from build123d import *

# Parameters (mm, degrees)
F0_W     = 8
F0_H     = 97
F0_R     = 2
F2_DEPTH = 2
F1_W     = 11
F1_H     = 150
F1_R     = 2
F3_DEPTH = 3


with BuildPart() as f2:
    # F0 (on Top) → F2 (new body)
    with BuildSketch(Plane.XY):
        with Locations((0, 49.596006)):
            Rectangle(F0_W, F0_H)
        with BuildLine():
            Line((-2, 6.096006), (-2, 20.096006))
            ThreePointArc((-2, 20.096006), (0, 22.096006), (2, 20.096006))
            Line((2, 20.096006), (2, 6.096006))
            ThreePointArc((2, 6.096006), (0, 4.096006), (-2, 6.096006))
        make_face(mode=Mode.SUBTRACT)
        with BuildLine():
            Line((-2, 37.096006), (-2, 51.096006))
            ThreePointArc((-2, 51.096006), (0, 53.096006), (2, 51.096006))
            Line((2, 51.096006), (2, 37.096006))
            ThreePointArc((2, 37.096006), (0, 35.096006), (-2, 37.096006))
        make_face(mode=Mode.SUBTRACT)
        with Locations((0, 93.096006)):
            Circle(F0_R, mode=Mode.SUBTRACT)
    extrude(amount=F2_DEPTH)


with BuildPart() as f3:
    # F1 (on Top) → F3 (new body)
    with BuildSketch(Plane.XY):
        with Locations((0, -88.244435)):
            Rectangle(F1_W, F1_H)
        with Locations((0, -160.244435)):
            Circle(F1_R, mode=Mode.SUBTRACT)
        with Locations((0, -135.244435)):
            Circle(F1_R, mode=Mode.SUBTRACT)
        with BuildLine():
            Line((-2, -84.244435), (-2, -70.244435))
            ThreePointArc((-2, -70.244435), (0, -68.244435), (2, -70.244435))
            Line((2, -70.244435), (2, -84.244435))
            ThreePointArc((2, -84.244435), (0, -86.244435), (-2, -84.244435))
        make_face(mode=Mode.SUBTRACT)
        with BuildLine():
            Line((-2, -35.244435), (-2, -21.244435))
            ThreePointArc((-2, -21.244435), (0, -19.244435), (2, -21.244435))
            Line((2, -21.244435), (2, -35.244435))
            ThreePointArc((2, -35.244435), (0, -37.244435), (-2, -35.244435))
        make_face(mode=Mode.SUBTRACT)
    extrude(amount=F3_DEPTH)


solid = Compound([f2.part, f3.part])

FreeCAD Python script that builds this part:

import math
import FreeCAD as App
import Part
import Sketcher

V = App.Vector
Q = App.Units.Quantity

doc = App.newDocument("Part")
body = doc.addObject("PartDesign::Body", "Body")

sketch1 = body.newObject("Sketcher::SketchObject", "Sketch")
sketch1.AttachmentSupport = (doc.getObject("XY_Plane"), [""])
sketch1.MapMode = "FlatFace"
sketch1.addGeometry(Part.LineSegment(V(-4, 98.1, 0), V(-4, 1.1, 0)), False)
sketch1.addGeometry(Part.LineSegment(V(-4, 1.1, 0), V(4, 1.1, 0)), False)
sketch1.addGeometry(Part.LineSegment(V(4, 1.1, 0), V(4, 98.1, 0)), False)
sketch1.addGeometry(Part.LineSegment(V(4, 98.1, 0), V(-4, 98.1, 0)), False)
sketch1.addGeometry(Part.ArcOfCircle(Part.Circle(V(0, 6.1, 0), V(0, 0, 1), 2), math.radians(180), math.radians(360)), False)
sketch1.addGeometry(Part.LineSegment(V(-2, 6.1, 0), V(-2, 20.1, 0)), False)
sketch1.addGeometry(Part.ArcOfCircle(Part.Circle(V(0, 20.1, 0), V(0, 0, 1), 2), math.radians(0), math.radians(180)), False)
sketch1.addGeometry(Part.LineSegment(V(2, 20.1, 0), V(2, 6.1, 0)), False)
sketch1.addGeometry(Part.ArcOfCircle(Part.Circle(V(0, 37.1, 0), V(0, 0, 1), 2), math.radians(180), math.radians(360)), False)
sketch1.addGeometry(Part.LineSegment(V(-2, 37.1, 0), V(-2, 51.1, 0)), False)
sketch1.addGeometry(Part.ArcOfCircle(Part.Circle(V(0, 51.1, 0), V(0, 0, 1), 2), math.radians(0), math.radians(180)), False)
sketch1.addGeometry(Part.LineSegment(V(2, 51.1, 0), V(2, 37.1, 0)), False)
sketch1.addGeometry(Part.Circle(V(0, 93.1, 0), V(0, 0, 1), 2), False)
sketch1.addConstraint(Sketcher.Constraint("Coincident", 0, 2, 1, 1))
sketch1.addConstraint(Sketcher.Constraint("Coincident", 1, 2, 2, 1))
sketch1.addConstraint(Sketcher.Constraint("Coincident", 2, 2, 3, 1))
sketch1.addConstraint(Sketcher.Constraint("Coincident", 3, 2, 0, 1))
sketch1.addConstraint(Sketcher.Constraint("Tangent", 4, 1, 5, 1))
sketch1.addConstraint(Sketcher.Constraint("Tangent", 5, 2, 6, 2))
sketch1.addConstraint(Sketcher.Constraint("Tangent", 6, 1, 7, 1))
sketch1.addConstraint(Sketcher.Constraint("Tangent", 7, 2, 4, 2))
sketch1.addConstraint(Sketcher.Constraint("Tangent", 8, 1, 9, 1))
sketch1.addConstraint(Sketcher.Constraint("Tangent", 9, 2, 10, 2))
sketch1.addConstraint(Sketcher.Constraint("Tangent", 10, 1, 11, 1))
sketch1.addConstraint(Sketcher.Constraint("Tangent", 11, 2, 8, 2))
sketch1.addConstraint(Sketcher.Constraint("Vertical", 0))
sketch1.addConstraint(Sketcher.Constraint("Horizontal", 1))
sketch1.addConstraint(Sketcher.Constraint("Vertical", 2))
sketch1.addConstraint(Sketcher.Constraint("Horizontal", 3))
sketch1.addConstraint(Sketcher.Constraint("Vertical", 5))
sketch1.addConstraint(Sketcher.Constraint("Vertical", 7))
sketch1.addConstraint(Sketcher.Constraint("Vertical", 9))
sketch1.addConstraint(Sketcher.Constraint("Vertical", 11))
sketch1.addConstraint(Sketcher.Constraint("Equal", 6, 8))
sketch1.addConstraint(Sketcher.Constraint("Equal", 10, 12))
sketch1.addConstraint(Sketcher.Constraint("PointOnObject", 4, 3, -2))
sketch1.addConstraint(Sketcher.Constraint("PointOnObject", 8, 3, -2))
sketch1.addConstraint(Sketcher.Constraint("PointOnObject", 12, 3, -2))
sketch1.addConstraint(Sketcher.Constraint("Equal", 7, 9))
sketch1.addConstraint(Sketcher.Constraint("Diameter", 12, Q("4 mm")))
sketch1.addConstraint(Sketcher.Constraint("DistanceX", 1, 1, 1, 2, Q("8 mm")))
sketch1.addConstraint(Sketcher.Constraint("DistanceY", 0, 2, 0, 1, Q("97 mm")))
sketch1.addConstraint(Sketcher.Constraint("DistanceY", 5, 1, 5, 2, Q("14 mm")))
sketch1.addConstraint(Sketcher.Constraint("DistanceX", 0, 2, -1, 1, Q("4 mm")))
sketch1.addConstraint(Sketcher.Constraint("DistanceY", 6, 3, 8, 3, Q("17 mm")))
sketch1.addConstraint(Sketcher.Constraint("DistanceY", 10, 3, 12, 3, Q("42 mm")))
sketch1.addConstraint(Sketcher.Constraint("DistanceY", 0, 2, 4, 3, Q("5 mm")))
sketch1.addConstraint(Sketcher.Constraint("DistanceY", -1, 1, 4, 3, Q("6.096006 mm")))
pad1 = body.newObject("PartDesign::Pad", "Pad")
pad1.Profile = sketch1
pad1.Length = 2
body2 = doc.addObject("PartDesign::Body", "Body001")

sketch2 = body2.newObject("Sketcher::SketchObject", "Sketch001")
sketch2.AttachmentSupport = (doc.getObject("XY_Plane001"), [""])
sketch2.MapMode = "FlatFace"
sketch2.addGeometry(Part.LineSegment(V(-5.5, -13.2, 0), V(-5.5, -163.2, 0)), False)
sketch2.addGeometry(Part.LineSegment(V(-5.5, -163.2, 0), V(5.5, -163.2, 0)), False)
sketch2.addGeometry(Part.LineSegment(V(5.5, -163.2, 0), V(5.5, -13.2, 0)), False)
sketch2.addGeometry(Part.LineSegment(V(5.5, -13.2, 0), V(-5.5, -13.2, 0)), False)
sketch2.addGeometry(Part.Circle(V(0, -160.2, 0), V(0, 0, 1), 2), False)
sketch2.addGeometry(Part.Circle(V(0, -135.2, 0), V(0, 0, 1), 2), False)
sketch2.addGeometry(Part.ArcOfCircle(Part.Circle(V(0, -84.2, 0), V(0, 0, 1), 2), math.radians(180), math.radians(360)), False)
sketch2.addGeometry(Part.LineSegment(V(-2, -84.2, 0), V(-2, -70.2, 0)), False)
sketch2.addGeometry(Part.ArcOfCircle(Part.Circle(V(0, -70.2, 0), V(0, 0, 1), 2), math.radians(0), math.radians(180)), False)
sketch2.addGeometry(Part.LineSegment(V(2, -70.2, 0), V(2, -84.2, 0)), False)
sketch2.addGeometry(Part.ArcOfCircle(Part.Circle(V(0, -35.2, 0), V(0, 0, 1), 2), math.radians(180), math.radians(360)), False)
sketch2.addGeometry(Part.LineSegment(V(-2, -35.2, 0), V(-2, -21.2, 0)), False)
sketch2.addGeometry(Part.ArcOfCircle(Part.Circle(V(0, -21.2, 0), V(0, 0, 1), 2), math.radians(0), math.radians(180)), False)
sketch2.addGeometry(Part.LineSegment(V(2, -21.2, 0), V(2, -35.2, 0)), False)
sketch2.addConstraint(Sketcher.Constraint("Coincident", 0, 2, 1, 1))
sketch2.addConstraint(Sketcher.Constraint("Coincident", 1, 2, 2, 1))
sketch2.addConstraint(Sketcher.Constraint("Coincident", 2, 2, 3, 1))
sketch2.addConstraint(Sketcher.Constraint("Coincident", 3, 2, 0, 1))
sketch2.addConstraint(Sketcher.Constraint("Tangent", 6, 1, 7, 1))
sketch2.addConstraint(Sketcher.Constraint("Tangent", 7, 2, 8, 2))
sketch2.addConstraint(Sketcher.Constraint("Tangent", 8, 1, 9, 1))
sketch2.addConstraint(Sketcher.Constraint("Tangent", 9, 2, 6, 2))
sketch2.addConstraint(Sketcher.Constraint("Tangent", 10, 1, 11, 1))
sketch2.addConstraint(Sketcher.Constraint("Tangent", 11, 2, 12, 2))
sketch2.addConstraint(Sketcher.Constraint("Tangent", 12, 1, 13, 1))
sketch2.addConstraint(Sketcher.Constraint("Tangent", 13, 2, 10, 2))
sketch2.addConstraint(Sketcher.Constraint("Vertical", 0))
sketch2.addConstraint(Sketcher.Constraint("Horizontal", 1))
sketch2.addConstraint(Sketcher.Constraint("Vertical", 2))
sketch2.addConstraint(Sketcher.Constraint("Horizontal", 3))
sketch2.addConstraint(Sketcher.Constraint("Vertical", 7))
sketch2.addConstraint(Sketcher.Constraint("Vertical", 9))
sketch2.addConstraint(Sketcher.Constraint("Vertical", 11))
sketch2.addConstraint(Sketcher.Constraint("Vertical", 13))
sketch2.addConstraint(Sketcher.Constraint("Equal", 4, 5))
sketch2.addConstraint(Sketcher.Constraint("Equal", 5, 6))
sketch2.addConstraint(Sketcher.Constraint("Equal", 8, 10))
sketch2.addConstraint(Sketcher.Constraint("PointOnObject", 4, 3, -2))
sketch2.addConstraint(Sketcher.Constraint("PointOnObject", 5, 3, -2))
sketch2.addConstraint(Sketcher.Constraint("PointOnObject", 6, 3, -2))
sketch2.addConstraint(Sketcher.Constraint("PointOnObject", 10, 3, -2))
sketch2.addConstraint(Sketcher.Constraint("Equal", 9, 11))
sketch2.addConstraint(Sketcher.Constraint("Diameter", 4, Q("4 mm")))
sketch2.addConstraint(Sketcher.Constraint("DistanceX", 1, 1, 1, 2, Q("11 mm")))
sketch2.addConstraint(Sketcher.Constraint("DistanceY", 0, 2, 0, 1, Q("150 mm")))
sketch2.addConstraint(Sketcher.Constraint("DistanceY", 7, 1, 7, 2, Q("14 mm")))
sketch2.addConstraint(Sketcher.Constraint("DistanceY", 4, 3, 5, 3, Q("25 mm")))
sketch2.addConstraint(Sketcher.Constraint("DistanceY", 5, 3, 6, 3, Q("51 mm")))
sketch2.addConstraint(Sketcher.Constraint("DistanceY", 8, 3, 10, 3, Q("35 mm")))
sketch2.addConstraint(Sketcher.Constraint("DistanceY", 0, 2, 4, 3, Q("3 mm")))
sketch2.addConstraint(Sketcher.Constraint("DistanceX", 0, 2, -1, 1, Q("5.5 mm")))
sketch2.addConstraint(Sketcher.Constraint("DistanceY", 4, 3, -1, 1, Q("160.244435 mm")))
pad2 = body2.newObject("PartDesign::Pad", "Pad001")
pad2.Profile = sketch2
pad2.Length = 3

doc.recompute()
